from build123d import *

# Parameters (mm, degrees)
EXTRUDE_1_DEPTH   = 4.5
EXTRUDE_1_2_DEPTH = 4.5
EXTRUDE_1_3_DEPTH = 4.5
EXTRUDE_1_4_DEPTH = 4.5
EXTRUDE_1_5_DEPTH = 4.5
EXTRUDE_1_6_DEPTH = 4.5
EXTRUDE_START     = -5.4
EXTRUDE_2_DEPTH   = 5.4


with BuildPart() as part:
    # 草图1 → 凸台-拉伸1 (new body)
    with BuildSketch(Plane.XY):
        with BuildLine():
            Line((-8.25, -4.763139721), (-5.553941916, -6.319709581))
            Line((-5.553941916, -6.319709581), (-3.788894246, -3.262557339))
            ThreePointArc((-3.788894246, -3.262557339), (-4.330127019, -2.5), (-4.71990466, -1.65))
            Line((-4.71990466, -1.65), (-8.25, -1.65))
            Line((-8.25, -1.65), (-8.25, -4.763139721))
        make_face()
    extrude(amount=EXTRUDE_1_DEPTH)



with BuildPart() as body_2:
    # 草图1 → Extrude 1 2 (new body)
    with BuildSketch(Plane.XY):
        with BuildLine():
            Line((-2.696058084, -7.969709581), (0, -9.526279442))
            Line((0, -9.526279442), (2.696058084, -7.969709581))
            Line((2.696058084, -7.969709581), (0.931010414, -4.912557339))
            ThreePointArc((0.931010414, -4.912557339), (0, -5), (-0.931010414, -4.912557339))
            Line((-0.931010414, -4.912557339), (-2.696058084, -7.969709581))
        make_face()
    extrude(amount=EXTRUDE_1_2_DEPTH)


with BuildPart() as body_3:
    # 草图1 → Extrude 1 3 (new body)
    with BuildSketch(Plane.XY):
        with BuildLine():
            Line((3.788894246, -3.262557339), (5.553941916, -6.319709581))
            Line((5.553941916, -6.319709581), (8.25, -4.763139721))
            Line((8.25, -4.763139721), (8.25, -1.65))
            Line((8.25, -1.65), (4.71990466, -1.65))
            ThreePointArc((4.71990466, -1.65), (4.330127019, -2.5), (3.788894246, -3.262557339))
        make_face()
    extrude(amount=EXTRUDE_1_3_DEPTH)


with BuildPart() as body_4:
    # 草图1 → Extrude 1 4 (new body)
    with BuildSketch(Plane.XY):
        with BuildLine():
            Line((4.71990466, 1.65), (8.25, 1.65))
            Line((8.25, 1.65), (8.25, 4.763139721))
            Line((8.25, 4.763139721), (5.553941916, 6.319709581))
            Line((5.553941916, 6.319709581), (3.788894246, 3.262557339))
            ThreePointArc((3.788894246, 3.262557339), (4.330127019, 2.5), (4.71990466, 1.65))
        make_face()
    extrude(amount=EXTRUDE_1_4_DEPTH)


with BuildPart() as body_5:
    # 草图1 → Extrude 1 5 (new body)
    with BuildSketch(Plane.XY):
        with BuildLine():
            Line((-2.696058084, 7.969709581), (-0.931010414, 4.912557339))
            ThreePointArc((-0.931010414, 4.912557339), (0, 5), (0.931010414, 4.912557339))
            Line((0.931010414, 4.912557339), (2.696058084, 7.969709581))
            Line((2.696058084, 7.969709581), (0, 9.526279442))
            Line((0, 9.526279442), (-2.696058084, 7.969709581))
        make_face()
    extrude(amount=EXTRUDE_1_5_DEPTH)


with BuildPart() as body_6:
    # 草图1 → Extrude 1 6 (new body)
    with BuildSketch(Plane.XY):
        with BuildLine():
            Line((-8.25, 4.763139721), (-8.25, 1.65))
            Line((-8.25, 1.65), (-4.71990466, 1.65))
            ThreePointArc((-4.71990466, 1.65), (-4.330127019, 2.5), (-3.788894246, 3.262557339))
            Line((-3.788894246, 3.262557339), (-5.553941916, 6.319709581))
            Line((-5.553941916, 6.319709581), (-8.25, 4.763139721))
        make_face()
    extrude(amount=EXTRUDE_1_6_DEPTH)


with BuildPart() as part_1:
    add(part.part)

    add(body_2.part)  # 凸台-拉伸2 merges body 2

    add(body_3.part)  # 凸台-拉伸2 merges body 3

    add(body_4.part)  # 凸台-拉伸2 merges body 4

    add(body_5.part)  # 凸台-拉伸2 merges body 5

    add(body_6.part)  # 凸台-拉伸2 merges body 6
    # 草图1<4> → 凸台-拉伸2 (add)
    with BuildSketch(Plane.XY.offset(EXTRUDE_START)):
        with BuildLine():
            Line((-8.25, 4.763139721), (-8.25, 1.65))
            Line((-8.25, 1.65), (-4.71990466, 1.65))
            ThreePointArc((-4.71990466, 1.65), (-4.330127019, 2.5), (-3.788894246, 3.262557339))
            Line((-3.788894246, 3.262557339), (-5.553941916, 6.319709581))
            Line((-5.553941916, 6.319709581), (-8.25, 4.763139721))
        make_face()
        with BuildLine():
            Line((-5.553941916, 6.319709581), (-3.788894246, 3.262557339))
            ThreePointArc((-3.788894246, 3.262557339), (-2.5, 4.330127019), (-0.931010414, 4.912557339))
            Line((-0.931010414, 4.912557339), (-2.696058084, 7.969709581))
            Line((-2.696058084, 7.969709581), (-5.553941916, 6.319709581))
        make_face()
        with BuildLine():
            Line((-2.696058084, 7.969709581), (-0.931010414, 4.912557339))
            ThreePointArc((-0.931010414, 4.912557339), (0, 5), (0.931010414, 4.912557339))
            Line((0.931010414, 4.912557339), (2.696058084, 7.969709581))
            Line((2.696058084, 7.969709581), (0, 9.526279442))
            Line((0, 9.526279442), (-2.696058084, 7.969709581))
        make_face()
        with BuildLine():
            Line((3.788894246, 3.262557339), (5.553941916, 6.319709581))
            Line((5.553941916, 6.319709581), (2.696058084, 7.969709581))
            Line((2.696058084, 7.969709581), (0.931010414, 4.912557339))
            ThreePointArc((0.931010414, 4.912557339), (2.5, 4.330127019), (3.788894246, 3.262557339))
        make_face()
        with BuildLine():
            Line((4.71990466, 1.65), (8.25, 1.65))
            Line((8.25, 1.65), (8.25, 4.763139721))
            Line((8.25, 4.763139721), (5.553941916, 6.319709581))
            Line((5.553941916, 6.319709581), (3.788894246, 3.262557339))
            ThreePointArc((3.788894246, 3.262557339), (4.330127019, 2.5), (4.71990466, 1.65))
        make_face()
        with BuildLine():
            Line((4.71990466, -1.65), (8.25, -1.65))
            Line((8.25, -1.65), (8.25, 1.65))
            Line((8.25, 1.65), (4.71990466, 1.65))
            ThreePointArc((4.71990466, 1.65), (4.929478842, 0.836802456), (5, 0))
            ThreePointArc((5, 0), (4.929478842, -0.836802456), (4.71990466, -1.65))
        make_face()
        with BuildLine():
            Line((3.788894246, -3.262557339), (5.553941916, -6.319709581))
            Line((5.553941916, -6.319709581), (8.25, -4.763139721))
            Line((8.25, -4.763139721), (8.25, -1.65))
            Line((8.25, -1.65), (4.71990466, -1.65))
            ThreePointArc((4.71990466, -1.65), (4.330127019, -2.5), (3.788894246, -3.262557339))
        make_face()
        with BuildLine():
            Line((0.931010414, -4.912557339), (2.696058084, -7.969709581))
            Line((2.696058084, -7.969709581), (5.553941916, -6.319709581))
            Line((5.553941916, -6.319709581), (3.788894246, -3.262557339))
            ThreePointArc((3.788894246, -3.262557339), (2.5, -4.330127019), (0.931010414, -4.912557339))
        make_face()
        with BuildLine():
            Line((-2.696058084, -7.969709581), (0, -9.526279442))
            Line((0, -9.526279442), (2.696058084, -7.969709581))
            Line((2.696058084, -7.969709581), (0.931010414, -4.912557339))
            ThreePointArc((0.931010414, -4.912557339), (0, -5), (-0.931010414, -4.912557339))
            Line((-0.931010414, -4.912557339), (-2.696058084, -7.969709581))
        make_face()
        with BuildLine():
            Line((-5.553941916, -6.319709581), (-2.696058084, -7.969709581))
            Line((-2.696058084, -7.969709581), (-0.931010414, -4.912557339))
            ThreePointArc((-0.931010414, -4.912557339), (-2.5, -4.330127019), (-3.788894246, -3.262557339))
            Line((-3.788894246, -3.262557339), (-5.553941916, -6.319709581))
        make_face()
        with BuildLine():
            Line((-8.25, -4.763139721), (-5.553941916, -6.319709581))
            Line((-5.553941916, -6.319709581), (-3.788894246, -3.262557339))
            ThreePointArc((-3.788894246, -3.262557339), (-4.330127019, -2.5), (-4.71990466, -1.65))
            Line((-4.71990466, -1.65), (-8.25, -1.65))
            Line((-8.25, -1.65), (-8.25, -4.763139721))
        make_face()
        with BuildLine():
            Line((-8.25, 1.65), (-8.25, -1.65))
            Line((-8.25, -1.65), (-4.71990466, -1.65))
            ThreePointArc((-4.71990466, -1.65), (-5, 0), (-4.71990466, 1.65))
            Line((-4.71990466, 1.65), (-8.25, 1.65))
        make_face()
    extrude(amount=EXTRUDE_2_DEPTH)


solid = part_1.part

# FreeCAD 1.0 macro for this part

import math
import FreeCAD as App
import Part
import Sketcher
from FreeCAD import Vector
Q = App.Units.Quantity


def add_polygon(sketch, points):
    """Adds a closed chain of lines whose ends are joined by coincident constraints."""
    first, n = sketch.GeometryCount, len(points)
    for a, b in zip(points, points[1:] + points[:1]):
        sketch.addGeometry(Part.LineSegment(App.Vector(*a, 0), App.Vector(*b, 0)), False)
    for i in range(n):
        sketch.addConstraint(Sketcher.Constraint("Coincident", first + i, 2, first + (i + 1) % n, 1))

doc = App.newDocument("Part")
body = doc.addObject("PartDesign::Body", "Body")

sketch1 = body.newObject("Sketcher::SketchObject", "Sketch")
sketch1.AttachmentSupport = (doc.getObject("XY_Plane"), [""])
sketch1.MapMode = "FlatFace"
sketch1.addGeometry(Part.LineSegment(Vector(-8.2, -4.8, 0), Vector(-5.6, -6.3, 0)), False)
sketch1.addGeometry(Part.LineSegment(Vector(-5.6, -6.3, 0), Vector(-3.8, -3.3, 0)), False)
sketch1.addGeometry(Part.ArcOfCircle(Part.Circle(Vector(0, 0, 0), Vector(0, 0, 1), 5), math.radians(-161), math.radians(-139)), False)
sketch1.addGeometry(Part.LineSegment(Vector(-4.7, -1.6, 0), Vector(-8.2, -1.6, 0)), False)
sketch1.addGeometry(Part.LineSegment(Vector(-8.2, -1.6, 0), Vector(-8.2, -4.8, 0)), False)
sketch1.addConstraint(Sketcher.Constraint("Coincident", 0, 2, 1, 1))
sketch1.addConstraint(Sketcher.Constraint("Coincident", 1, 2, 2, 2))
sketch1.addConstraint(Sketcher.Constraint("Coincident", 2, 1, 3, 1))
sketch1.addConstraint(Sketcher.Constraint("Coincident", 3, 2, 4, 1))
sketch1.addConstraint(Sketcher.Constraint("Coincident", 4, 2, 0, 1))
sketch1.addConstraint(Sketcher.Constraint("Horizontal", 3))
sketch1.addConstraint(Sketcher.Constraint("Vertical", 4))
sketch1.addConstraint(Sketcher.Constraint("Coincident", 2, 3, -1, 1))
sketch1.addConstraint(Sketcher.Constraint("Perpendicular", 0, 1))
sketch1.addConstraint(Sketcher.Constraint("Radius", 2, 5.0))
sketch1.addConstraint(Sketcher.Constraint("Angle", 0, Q("-30 deg")))
sketch1.addConstraint(Sketcher.Constraint("DistanceY", 2, 1, -1, 1, 1.65))
sketch1.addConstraint(Sketcher.Constraint("DistanceX", 3, 2, -1, 1, 8.25))
sketch1.addConstraint(Sketcher.Constraint("DistanceY", 4, 2, 4, 1, 3.11314))
sketch1.addConstraint(Sketcher.Constraint("Distance", 0, 3.11314))
pad1 = body.newObject("PartDesign::Pad", "Pad")
pad1.Profile = sketch1
pad1.Length = 4.5
body2 = doc.addObject("PartDesign::Body", "Body001")

sketch2 = body2.newObject("Sketcher::SketchObject", "Sketch001")
sketch2.AttachmentSupport = (doc.getObject("XY_Plane001"), [""])
sketch2.MapMode = "FlatFace"
sketch2.addGeometry(Part.LineSegment(Vector(-2.7, -8, 0), Vector(0, -9.5, 0)), False)
sketch2.addGeometry(Part.LineSegment(Vector(0, -9.5, 0), Vector(2.7, -8, 0)), False)
sketch2.addGeometry(Part.LineSegment(Vector(2.7, -8, 0), Vector(0.9, -4.9, 0)), False)
sketch2.addGeometry(Part.ArcOfCircle(Part.Circle(Vector(0, 0, 0), Vector(0, 0, 1), 5), math.radians(-101), math.radians(-79)), False)
sketch2.addGeometry(Part.LineSegment(Vector(-0.9, -4.9, 0), Vector(-2.7, -8, 0)), False)
sketch2.addConstraint(Sketcher.Constraint("Coincident", 0, 2, 1, 1))
sketch2.addConstraint(Sketcher.Constraint("Coincident", 1, 2, 2, 1))
sketch2.addConstraint(Sketcher.Constraint("Coincident", 2, 2, 3, 2))
sketch2.addConstraint(Sketcher.Constraint("Coincident", 3, 1, 4, 1))
sketch2.addConstraint(Sketcher.Constraint("Coincident", 4, 2, 0, 1))
sketch2.addConstraint(Sketcher.Constraint("Coincident", 3, 3, -1, 1))
sketch2.addConstraint(Sketcher.Constraint("Symmetric", 1, 2, 4, 2, -2))
sketch2.addConstraint(Sketcher.Constraint("PointOnObject", 0, 2, -2))
sketch2.addConstraint(Sketcher.Constraint("Perpendicular", 1, 2))
sketch2.addConstraint(Sketcher.Constraint("Perpendicular", 0, 4))
sketch2.addConstraint(Sketcher.Constraint("Radius", 3, 5.0))
sketch2.addConstraint(Sketcher.Constraint("Angle", 0, Q("-30 deg")))
sketch2.addConstraint(Sketcher.Constraint("Distance", 0, 3.11314))
sketch2.addConstraint(Sketcher.Constraint("DistanceY", 0, 2, -1, 1, 9.526279))
pad2 = body2.newObject("PartDesign::Pad", "Pad001")
pad2.Profile = sketch2
pad2.Length = 4.5
body3 = doc.addObject("PartDesign::Body", "Body002")

sketch3 = body3.newObject("Sketcher::SketchObject", "Sketch002")
sketch3.AttachmentSupport = (doc.getObject("XY_Plane002"), [""])
sketch3.MapMode = "FlatFace"
sketch3.addGeometry(Part.LineSegment(Vector(3.8, -3.3, 0), Vector(5.6, -6.3, 0)), False)
sketch3.addGeometry(Part.LineSegment(Vector(5.6, -6.3, 0), Vector(8.2, -4.8, 0)), False)
sketch3.addGeometry(Part.LineSegment(Vector(8.2, -4.8, 0), Vector(8.2, -1.6, 0)), False)
sketch3.addGeometry(Part.LineSegment(Vector(8.2, -1.6, 0), Vector(4.7, -1.6, 0)), False)
sketch3.addGeometry(Part.ArcOfCircle(Part.Circle(Vector(0, 0, 0), Vector(0, 0, 1), 5), math.radians(-41), math.radians(-19)), False)
sketch3.addConstraint(Sketcher.Constraint("Coincident", 0, 2, 1, 1))
sketch3.addConstraint(Sketcher.Constraint("Coincident", 1, 2, 2, 1))
sketch3.addConstraint(Sketcher.Constraint("Coincident", 2, 2, 3, 1))
sketch3.addConstraint(Sketcher.Constraint("Coincident", 3, 2, 4, 2))
sketch3.addConstraint(Sketcher.Constraint("Coincident", 4, 1, 0, 1))
sketch3.addConstraint(Sketcher.Constraint("Vertical", 2))
sketch3.addConstraint(Sketcher.Constraint("Horizontal", 3))
sketch3.addConstraint(Sketcher.Constraint("Coincident", 4, 3, -1, 1))
sketch3.addConstraint(Sketcher.Constraint("Perpendicular", 0, 1))
sketch3.addConstraint(Sketcher.Constraint("Radius", 4, 5.0))
sketch3.addConstraint(Sketcher.Constraint("Angle", 0, Q("-60 deg")))
sketch3.addConstraint(Sketcher.Constraint("DistanceX", -1, 1, 1, 2, 8.25))
sketch3.addConstraint(Sketcher.Constraint("DistanceY", 2, 2, -1, 1, 1.65))
sketch3.addConstraint(Sketcher.Constraint("DistanceY", 2, 1, 2, 2, 3.11314))
sketch3.addConstraint(Sketcher.Constraint("Distance", 1, 3.11314))
pad3 = body3.newObject("PartDesign::Pad", "Pad002")
pad3.Profile = sketch3
pad3.Length = 4.5
body4 = doc.addObject("PartDesign::Body", "Body003")

sketch4 = body4.newObject("Sketcher::SketchObject", "Sketch003")
sketch4.AttachmentSupport = (doc.getObject("XY_Plane003"), [""])
sketch4.MapMode = "FlatFace"
sketch4.addGeometry(Part.LineSegment(Vector(4.7, 1.6, 0), Vector(8.2, 1.6, 0)), False)
sketch4.addGeometry(Part.LineSegment(Vector(8.2, 1.6, 0), Vector(8.2, 4.8, 0)), False)
sketch4.addGeometry(Part.LineSegment(Vector(8.2, 4.8, 0), Vector(5.6, 6.3, 0)), False)
sketch4.addGeometry(Part.LineSegment(Vector(5.6, 6.3, 0), Vector(3.8, 3.3, 0)), False)
sketch4.addGeometry(Part.ArcOfCircle(Part.Circle(Vector(0, 0, 0), Vector(0, 0, 1), 5), math.radians(19), math.radians(41)), False)
sketch4.addConstraint(Sketcher.Constraint("Coincident", 0, 2, 1, 1))
sketch4.addConstraint(Sketcher.Constraint("Coincident", 1, 2, 2, 1))
sketch4.addConstraint(Sketcher.Constraint("Coincident", 2, 2, 3, 1))
sketch4.addConstraint(Sketcher.Constraint("Coincident", 3, 2, 4, 2))
sketch4.addConstraint(Sketcher.Constraint("Coincident", 4, 1, 0, 1))
sketch4.addConstraint(Sketcher.Constraint("Horizontal", 0))
sketch4.addConstraint(Sketcher.Constraint("Vertical", 1))
sketch4.addConstraint(Sketcher.Constraint("Coincident", 4, 3, -1, 1))
sketch4.addConstraint(Sketcher.Constraint("Perpendicular", 2, 3))
sketch4.addConstraint(Sketcher.Constraint("Radius", 4, 5.0))
sketch4.addConstraint(Sketcher.Constraint("Angle", 2, Q("150 deg")))
sketch4.addConstraint(Sketcher.Constraint("DistanceX", -1, 1, 0, 2, 8.25))
sketch4.addConstraint(Sketcher.Constraint("DistanceY", -1, 1, 0, 2, 1.65))
sketch4.addConstraint(Sketcher.Constraint("DistanceY", 1, 1, 1, 2, 3.11314))
sketch4.addConstraint(Sketcher.Constraint("Distance", 2, 3.11314))
pad4 = body4.newObject("PartDesign::Pad", "Pad003")
pad4.Profile = sketch4
pad4.Length = 4.5
body5 = doc.addObject("PartDesign::Body", "Body004")

sketch5 = body5.newObject("Sketcher::SketchObject", "Sketch004")
sketch5.AttachmentSupport = (doc.getObject("XY_Plane004"), [""])
sketch5.MapMode = "FlatFace"
sketch5.addGeometry(Part.LineSegment(Vector(-2.7, 8, 0), Vector(-0.9, 4.9, 0)), False)
sketch5.addGeometry(Part.ArcOfCircle(Part.Circle(Vector(0, 0, 0), Vector(0, 0, 1), 5), math.radians(79), math.radians(101)), False)
sketch5.addGeometry(Part.LineSegment(Vector(0.9, 4.9, 0), Vector(2.7, 8, 0)), False)
sketch5.addGeometry(Part.LineSegment(Vector(2.7, 8, 0), Vector(0, 9.5, 0)), False)
sketch5.addGeometry(Part.LineSegment(Vector(0, 9.5, 0), Vector(-2.7, 8, 0)), False)
sketch5.addConstraint(Sketcher.Constraint("Coincident", 0, 2, 1, 2))
sketch5.addConstraint(Sketcher.Constraint("Coincident", 1, 1, 2, 1))
sketch5.addConstraint(Sketcher.Constraint("Coincident", 2, 2, 3, 1))
sketch5.addConstraint(Sketcher.Constraint("Coincident", 3, 2, 4, 1))
sketch5.addConstraint(Sketcher.Constraint("Coincident", 4, 2, 0, 1))
sketch5.addConstraint(Sketcher.Constraint("Coincident", 1, 3, -1, 1))
sketch5.addConstraint(Sketcher.Constraint("Symmetric", 2, 2, 4, 2, -2))
sketch5.addConstraint(Sketcher.Constraint("PointOnObject", 3, 2, -2))
sketch5.addConstraint(Sketcher.Constraint("Perpendicular", 2, 3))
sketch5.addConstraint(Sketcher.Constraint("Perpendicular", 0, 4))
sketch5.addConstraint(Sketcher.Constraint("Radius", 1, 5.0))
sketch5.addConstraint(Sketcher.Constraint("Angle", 0, Q("-60 deg")))
sketch5.addConstraint(Sketcher.Constraint("Distance", 3, 3.11314))
sketch5.addConstraint(Sketcher.Constraint("DistanceX", 0, 2, -1, 1, 0.93101))
pad5 = body5.newObject("PartDesign::Pad", "Pad004")
pad5.Profile = sketch5
pad5.Length = 4.5
body6 = doc.addObject("PartDesign::Body", "Body005")

sketch6 = body6.newObject("Sketcher::SketchObject", "Sketch005")
sketch6.AttachmentSupport = (doc.getObject("XY_Plane005"), [""])
sketch6.MapMode = "FlatFace"
sketch6.addGeometry(Part.LineSegment(Vector(-8.2, 4.8, 0), Vector(-8.2, 1.6, 0)), False)
sketch6.addGeometry(Part.LineSegment(Vector(-8.2, 1.6, 0), Vector(-4.7, 1.6, 0)), False)
sketch6.addGeometry(Part.ArcOfCircle(Part.Circle(Vector(0, 0, 0), Vector(0, 0, 1), 5), math.radians(139), math.radians(161)), False)
sketch6.addGeometry(Part.LineSegment(Vector(-3.8, 3.3, 0), Vector(-5.6, 6.3, 0)), False)
sketch6.addGeometry(Part.LineSegment(Vector(-5.6, 6.3, 0), Vector(-8.2, 4.8, 0)), False)
sketch6.addConstraint(Sketcher.Constraint("Coincident", 0, 2, 1, 1))
sketch6.addConstraint(Sketcher.Constraint("Coincident", 1, 2, 2, 2))
sketch6.addConstraint(Sketcher.Constraint("Coincident", 2, 1, 3, 1))
sketch6.addConstraint(Sketcher.Constraint("Coincident", 3, 2, 4, 1))
sketch6.addConstraint(Sketcher.Constraint("Coincident", 4, 2, 0, 1))
sketch6.addConstraint(Sketcher.Constraint("Vertical", 0))
sketch6.addConstraint(Sketcher.Constraint("Horizontal", 1))
sketch6.addConstraint(Sketcher.Constraint("Coincident", 2, 3, -1, 1))
sketch6.addConstraint(Sketcher.Constraint("Perpendicular", 3, 4))
sketch6.addConstraint(Sketcher.Constraint("Radius", 2, 5.0))
sketch6.addConstraint(Sketcher.Constraint("Angle", 3, Q("120 deg")))
sketch6.addConstraint(Sketcher.Constraint("DistanceX", 0, 2, -1, 1, 8.25))
sketch6.addConstraint(Sketcher.Constraint("DistanceY", -1, 1, 0, 2, 1.65))
sketch6.addConstraint(Sketcher.Constraint("DistanceY", 0, 2, 0, 1, 3.11314))
sketch6.addConstraint(Sketcher.Constraint("Distance", 4, 3.11314))
pad6 = body6.newObject("PartDesign::Pad", "Pad005")
pad6.Profile = sketch6
pad6.Length = 4.5
body.AllowCompound = True
doc.recompute()

boolean = body.newObject("PartDesign::Boolean", "Boolean")
boolean.Type = "Fuse"
boolean.addObjects([body2])
doc.recompute()

boolean2 = body.newObject("PartDesign::Boolean", "Boolean001")
boolean2.Type = "Fuse"
boolean2.addObjects([body3])
doc.recompute()

boolean3 = body.newObject("PartDesign::Boolean", "Boolean002")
boolean3.Type = "Fuse"
boolean3.addObjects([body4])
doc.recompute()

boolean4 = body.newObject("PartDesign::Boolean", "Boolean003")
boolean4.Type = "Fuse"
boolean4.addObjects([body5])
doc.recompute()

boolean5 = body.newObject("PartDesign::Boolean", "Boolean004")
boolean5.Type = "Fuse"
boolean5.addObjects([body6])

sketch7 = body.newObject("Sketcher::SketchObject", "Sketch006")
sketch7.AttachmentSupport = (doc.getObject("XY_Plane"), [""])
sketch7.MapMode = "FlatFace"
sketch7.AttachmentOffset = App.Placement(Vector(0, 0, -5.4), App.Rotation())
add_polygon(sketch7, [(-8.2, 4.8), (-8.2, -4.8), (-5.6, -6.3), (-2.7, -8), (0, -9.5), (2.7, -8), (5.6, -6.3), (8.2, -4.8), (8.2, 4.8), (5.6, 6.3), (2.7, 8), (0, 9.5), (-2.7, 8), (-5.6, 6.3)])
sketch7.addGeometry(Part.ArcOfCircle(Part.Circle(Vector(0, 0, 0), Vector(0, 0, 1), 5), math.radians(139), math.radians(161)), False)
sketch7.addGeometry(Part.ArcOfCircle(Part.Circle(Vector(0, 0, 0), Vector(0, 0, 1), 5), math.radians(101), math.radians(139)), False)
sketch7.addGeometry(Part.ArcOfCircle(Part.Circle(Vector(0, 0, 0), Vector(0, 0, 1), 5), math.radians(79), math.radians(101)), False)
sketch7.addGeometry(Part.ArcOfCircle(Part.Circle(Vector(0, 0, 0), Vector(0, 0, 1), 5), math.radians(41), math.radians(79)), False)
sketch7.addGeometry(Part.ArcOfCircle(Part.Circle(Vector(0, 0, 0), Vector(0, 0, 1), 5), math.radians(19), math.radians(41)), False)
sketch7.addGeometry(Part.ArcOfCircle(Part.Circle(Vector(0, 0, 0), Vector(0, 0, 1), 5), math.radians(0), math.radians(19.27)), False)
sketch7.addGeometry(Part.ArcOfCircle(Part.Circle(Vector(0, 0, 0), Vector(0, 0, 1), 5), math.radians(-19.27), math.radians(0)), False)
sketch7.addGeometry(Part.ArcOfCircle(Part.Circle(Vector(0, 0, 0), Vector(0, 0, 1), 5), math.radians(-41), math.radians(-19)), False)
sketch7.addGeometry(Part.ArcOfCircle(Part.Circle(Vector(0, 0, 0), Vector(0, 0, 1), 5), math.radians(-79), math.radians(-41)), False)
sketch7.addGeometry(Part.ArcOfCircle(Part.Circle(Vector(0, 0, 0), Vector(0, 0, 1), 5), math.radians(-101), math.radians(-79)), False)
sketch7.addGeometry(Part.ArcOfCircle(Part.Circle(Vector(0, 0, 0), Vector(0, 0, 1), 5), math.radians(-139), math.radians(-101)), False)
sketch7.addGeometry(Part.ArcOfCircle(Part.Circle(Vector(0, 0, 0), Vector(0, 0, 1), 5), math.radians(-161), math.radians(-139)), False)
sketch7.addGeometry(Part.ArcOfCircle(Part.Circle(Vector(0, 0, 0), Vector(0, 0, 1), 5), math.radians(161), math.radians(199)), False)
sketch7.addConstraint(Sketcher.Constraint("Tangent", 14, 1, 15, 2))
sketch7.addConstraint(Sketcher.Constraint("Tangent", 15, 1, 16, 2))
sketch7.addConstraint(Sketcher.Constraint("Tangent", 16, 1, 17, 2))
sketch7.addConstraint(Sketcher.Constraint("Tangent", 17, 1, 18, 2))
sketch7.addConstraint(Sketcher.Constraint("Tangent", 18, 1, 19, 2))
sketch7.addConstraint(Sketcher.Constraint("Tangent", 19, 1, 20, 2))
sketch7.addConstraint(Sketcher.Constraint("Tangent", 20, 1, 21, 2))
sketch7.addConstraint(Sketcher.Constraint("Tangent", 21, 1, 22, 2))
sketch7.addConstraint(Sketcher.Constraint("Tangent", 22, 1, 23, 2))
sketch7.addConstraint(Sketcher.Constraint("Tangent", 23, 1, 24, 2))
sketch7.addConstraint(Sketcher.Constraint("Tangent", 24, 1, 25, 2))
sketch7.addConstraint(Sketcher.Constraint("Tangent", 25, 1, 26, 2))
sketch7.addConstraint(Sketcher.Constraint("Tangent", 26, 1, 14, 2))
sketch7.addConstraint(Sketcher.Constraint("Vertical", 0))
sketch7.addConstraint(Sketcher.Constraint("Vertical", 7))
sketch7.addConstraint(Sketcher.Constraint("Coincident", 14, 3, -1, 1))
sketch7.addConstraint(Sketcher.Constraint("Coincident", 16, 3, -1, 1))
sketch7.addConstraint(Sketcher.Constraint("Coincident", 18, 3, -1, 1))
sketch7.addConstraint(Sketcher.Constraint("Coincident", 20, 3, -1, 1))
sketch7.addConstraint(Sketcher.Constraint("Coincident", 22, 3, -1, 1))
sketch7.addConstraint(Sketcher.Constraint("Coincident", 24, 3, -1, 1))
sketch7.addConstraint(Sketcher.Constraint("Symmetric", 0, 2, 7, 2, -1, 1))
sketch7.addConstraint(Sketcher.Constraint("Symmetric", 1, 2, 8, 2, -1, 1))
sketch7.addConstraint(Sketcher.Constraint("Symmetric", 2, 2, 9, 2, -1, 1))
sketch7.addConstraint(Sketcher.Constraint("Symmetric", 3, 2, 10, 2, -1, 1))
sketch7.addConstraint(Sketcher.Constraint("Symmetric", 4, 2, 11, 2, -1, 1))
sketch7.addConstraint(Sketcher.Constraint("Symmetric", 5, 2, 12, 2, -1, 1))
sketch7.addConstraint(Sketcher.Constraint("Symmetric", 2, 2, 4, 2, -2))
sketch7.addConstraint(Sketcher.Constraint("Symmetric", 1, 2, 5, 2, -2))
sketch7.addConstraint(Sketcher.Constraint("PointOnObject", 3, 2, -2))
sketch7.addConstraint(Sketcher.Constraint("PointOnObject", 19, 1, -1))
sketch7.addConstraint(Sketcher.Constraint("Parallel", 1, 2))
sketch7.addConstraint(Sketcher.Constraint("Parallel", 2, 3))
sketch7.addConstraint(Sketcher.Constraint("Parallel", 5, 6))
sketch7.addConstraint(Sketcher.Constraint("Parallel", 12, 13))
sketch7.addConstraint(Sketcher.Constraint("Horizontal", 15, 1, 16, 1))
sketch7.addConstraint(Sketcher.Constraint("Horizontal", 14, 1, 17, 1))
sketch7.addConstraint(Sketcher.Constraint("Horizontal", 22, 1, 23, 1))
sketch7.addConstraint(Sketcher.Constraint("Horizontal", 21, 1, 24, 1))
sketch7.addConstraint(Sketcher.Constraint("Horizontal", 20, 1, 25, 1))
sketch7.addConstraint(Sketcher.Constraint("Horizontal", 18, 1, 26, 1))
sketch7.addConstraint(Sketcher.Constraint("Vertical", 18, 1, 20, 1))
sketch7.addConstraint(Sketcher.Constraint("Vertical", 17, 1, 21, 1))
sketch7.addConstraint(Sketcher.Constraint("Vertical", 16, 1, 22, 1))
sketch7.addConstraint(Sketcher.Constraint("Equal", 1, 3))
sketch7.addConstraint(Sketcher.Constraint("Radius", 14, 5.0))
sketch7.addConstraint(Sketcher.Constraint("Angle", 1, Q("-30 deg")))
sketch7.addConstraint(Sketcher.Constraint("Distance", 2, 3.3))
sketch7.addConstraint(Sketcher.Constraint("DistanceY", 20, 1, 18, 1, 3.3))
sketch7.addConstraint(Sketcher.Constraint("DistanceX", 0, 2, -1, 1, 8.25))
sketch7.addConstraint(Sketcher.Constraint("DistanceY", 14, 1, 15, 1, 1.65))
sketch7.addConstraint(Sketcher.Constraint("DistanceY", 0, 2, 0, 1, 9.526279))
sketch7.addConstraint(Sketcher.Constraint("DistanceX", 15, 1, -1, 1, 0.93101))
pad7 = body.newObject("PartDesign::Pad", "Pad006")
pad7.Profile = sketch7
pad7.Length = 5.4

doc.recompute()
